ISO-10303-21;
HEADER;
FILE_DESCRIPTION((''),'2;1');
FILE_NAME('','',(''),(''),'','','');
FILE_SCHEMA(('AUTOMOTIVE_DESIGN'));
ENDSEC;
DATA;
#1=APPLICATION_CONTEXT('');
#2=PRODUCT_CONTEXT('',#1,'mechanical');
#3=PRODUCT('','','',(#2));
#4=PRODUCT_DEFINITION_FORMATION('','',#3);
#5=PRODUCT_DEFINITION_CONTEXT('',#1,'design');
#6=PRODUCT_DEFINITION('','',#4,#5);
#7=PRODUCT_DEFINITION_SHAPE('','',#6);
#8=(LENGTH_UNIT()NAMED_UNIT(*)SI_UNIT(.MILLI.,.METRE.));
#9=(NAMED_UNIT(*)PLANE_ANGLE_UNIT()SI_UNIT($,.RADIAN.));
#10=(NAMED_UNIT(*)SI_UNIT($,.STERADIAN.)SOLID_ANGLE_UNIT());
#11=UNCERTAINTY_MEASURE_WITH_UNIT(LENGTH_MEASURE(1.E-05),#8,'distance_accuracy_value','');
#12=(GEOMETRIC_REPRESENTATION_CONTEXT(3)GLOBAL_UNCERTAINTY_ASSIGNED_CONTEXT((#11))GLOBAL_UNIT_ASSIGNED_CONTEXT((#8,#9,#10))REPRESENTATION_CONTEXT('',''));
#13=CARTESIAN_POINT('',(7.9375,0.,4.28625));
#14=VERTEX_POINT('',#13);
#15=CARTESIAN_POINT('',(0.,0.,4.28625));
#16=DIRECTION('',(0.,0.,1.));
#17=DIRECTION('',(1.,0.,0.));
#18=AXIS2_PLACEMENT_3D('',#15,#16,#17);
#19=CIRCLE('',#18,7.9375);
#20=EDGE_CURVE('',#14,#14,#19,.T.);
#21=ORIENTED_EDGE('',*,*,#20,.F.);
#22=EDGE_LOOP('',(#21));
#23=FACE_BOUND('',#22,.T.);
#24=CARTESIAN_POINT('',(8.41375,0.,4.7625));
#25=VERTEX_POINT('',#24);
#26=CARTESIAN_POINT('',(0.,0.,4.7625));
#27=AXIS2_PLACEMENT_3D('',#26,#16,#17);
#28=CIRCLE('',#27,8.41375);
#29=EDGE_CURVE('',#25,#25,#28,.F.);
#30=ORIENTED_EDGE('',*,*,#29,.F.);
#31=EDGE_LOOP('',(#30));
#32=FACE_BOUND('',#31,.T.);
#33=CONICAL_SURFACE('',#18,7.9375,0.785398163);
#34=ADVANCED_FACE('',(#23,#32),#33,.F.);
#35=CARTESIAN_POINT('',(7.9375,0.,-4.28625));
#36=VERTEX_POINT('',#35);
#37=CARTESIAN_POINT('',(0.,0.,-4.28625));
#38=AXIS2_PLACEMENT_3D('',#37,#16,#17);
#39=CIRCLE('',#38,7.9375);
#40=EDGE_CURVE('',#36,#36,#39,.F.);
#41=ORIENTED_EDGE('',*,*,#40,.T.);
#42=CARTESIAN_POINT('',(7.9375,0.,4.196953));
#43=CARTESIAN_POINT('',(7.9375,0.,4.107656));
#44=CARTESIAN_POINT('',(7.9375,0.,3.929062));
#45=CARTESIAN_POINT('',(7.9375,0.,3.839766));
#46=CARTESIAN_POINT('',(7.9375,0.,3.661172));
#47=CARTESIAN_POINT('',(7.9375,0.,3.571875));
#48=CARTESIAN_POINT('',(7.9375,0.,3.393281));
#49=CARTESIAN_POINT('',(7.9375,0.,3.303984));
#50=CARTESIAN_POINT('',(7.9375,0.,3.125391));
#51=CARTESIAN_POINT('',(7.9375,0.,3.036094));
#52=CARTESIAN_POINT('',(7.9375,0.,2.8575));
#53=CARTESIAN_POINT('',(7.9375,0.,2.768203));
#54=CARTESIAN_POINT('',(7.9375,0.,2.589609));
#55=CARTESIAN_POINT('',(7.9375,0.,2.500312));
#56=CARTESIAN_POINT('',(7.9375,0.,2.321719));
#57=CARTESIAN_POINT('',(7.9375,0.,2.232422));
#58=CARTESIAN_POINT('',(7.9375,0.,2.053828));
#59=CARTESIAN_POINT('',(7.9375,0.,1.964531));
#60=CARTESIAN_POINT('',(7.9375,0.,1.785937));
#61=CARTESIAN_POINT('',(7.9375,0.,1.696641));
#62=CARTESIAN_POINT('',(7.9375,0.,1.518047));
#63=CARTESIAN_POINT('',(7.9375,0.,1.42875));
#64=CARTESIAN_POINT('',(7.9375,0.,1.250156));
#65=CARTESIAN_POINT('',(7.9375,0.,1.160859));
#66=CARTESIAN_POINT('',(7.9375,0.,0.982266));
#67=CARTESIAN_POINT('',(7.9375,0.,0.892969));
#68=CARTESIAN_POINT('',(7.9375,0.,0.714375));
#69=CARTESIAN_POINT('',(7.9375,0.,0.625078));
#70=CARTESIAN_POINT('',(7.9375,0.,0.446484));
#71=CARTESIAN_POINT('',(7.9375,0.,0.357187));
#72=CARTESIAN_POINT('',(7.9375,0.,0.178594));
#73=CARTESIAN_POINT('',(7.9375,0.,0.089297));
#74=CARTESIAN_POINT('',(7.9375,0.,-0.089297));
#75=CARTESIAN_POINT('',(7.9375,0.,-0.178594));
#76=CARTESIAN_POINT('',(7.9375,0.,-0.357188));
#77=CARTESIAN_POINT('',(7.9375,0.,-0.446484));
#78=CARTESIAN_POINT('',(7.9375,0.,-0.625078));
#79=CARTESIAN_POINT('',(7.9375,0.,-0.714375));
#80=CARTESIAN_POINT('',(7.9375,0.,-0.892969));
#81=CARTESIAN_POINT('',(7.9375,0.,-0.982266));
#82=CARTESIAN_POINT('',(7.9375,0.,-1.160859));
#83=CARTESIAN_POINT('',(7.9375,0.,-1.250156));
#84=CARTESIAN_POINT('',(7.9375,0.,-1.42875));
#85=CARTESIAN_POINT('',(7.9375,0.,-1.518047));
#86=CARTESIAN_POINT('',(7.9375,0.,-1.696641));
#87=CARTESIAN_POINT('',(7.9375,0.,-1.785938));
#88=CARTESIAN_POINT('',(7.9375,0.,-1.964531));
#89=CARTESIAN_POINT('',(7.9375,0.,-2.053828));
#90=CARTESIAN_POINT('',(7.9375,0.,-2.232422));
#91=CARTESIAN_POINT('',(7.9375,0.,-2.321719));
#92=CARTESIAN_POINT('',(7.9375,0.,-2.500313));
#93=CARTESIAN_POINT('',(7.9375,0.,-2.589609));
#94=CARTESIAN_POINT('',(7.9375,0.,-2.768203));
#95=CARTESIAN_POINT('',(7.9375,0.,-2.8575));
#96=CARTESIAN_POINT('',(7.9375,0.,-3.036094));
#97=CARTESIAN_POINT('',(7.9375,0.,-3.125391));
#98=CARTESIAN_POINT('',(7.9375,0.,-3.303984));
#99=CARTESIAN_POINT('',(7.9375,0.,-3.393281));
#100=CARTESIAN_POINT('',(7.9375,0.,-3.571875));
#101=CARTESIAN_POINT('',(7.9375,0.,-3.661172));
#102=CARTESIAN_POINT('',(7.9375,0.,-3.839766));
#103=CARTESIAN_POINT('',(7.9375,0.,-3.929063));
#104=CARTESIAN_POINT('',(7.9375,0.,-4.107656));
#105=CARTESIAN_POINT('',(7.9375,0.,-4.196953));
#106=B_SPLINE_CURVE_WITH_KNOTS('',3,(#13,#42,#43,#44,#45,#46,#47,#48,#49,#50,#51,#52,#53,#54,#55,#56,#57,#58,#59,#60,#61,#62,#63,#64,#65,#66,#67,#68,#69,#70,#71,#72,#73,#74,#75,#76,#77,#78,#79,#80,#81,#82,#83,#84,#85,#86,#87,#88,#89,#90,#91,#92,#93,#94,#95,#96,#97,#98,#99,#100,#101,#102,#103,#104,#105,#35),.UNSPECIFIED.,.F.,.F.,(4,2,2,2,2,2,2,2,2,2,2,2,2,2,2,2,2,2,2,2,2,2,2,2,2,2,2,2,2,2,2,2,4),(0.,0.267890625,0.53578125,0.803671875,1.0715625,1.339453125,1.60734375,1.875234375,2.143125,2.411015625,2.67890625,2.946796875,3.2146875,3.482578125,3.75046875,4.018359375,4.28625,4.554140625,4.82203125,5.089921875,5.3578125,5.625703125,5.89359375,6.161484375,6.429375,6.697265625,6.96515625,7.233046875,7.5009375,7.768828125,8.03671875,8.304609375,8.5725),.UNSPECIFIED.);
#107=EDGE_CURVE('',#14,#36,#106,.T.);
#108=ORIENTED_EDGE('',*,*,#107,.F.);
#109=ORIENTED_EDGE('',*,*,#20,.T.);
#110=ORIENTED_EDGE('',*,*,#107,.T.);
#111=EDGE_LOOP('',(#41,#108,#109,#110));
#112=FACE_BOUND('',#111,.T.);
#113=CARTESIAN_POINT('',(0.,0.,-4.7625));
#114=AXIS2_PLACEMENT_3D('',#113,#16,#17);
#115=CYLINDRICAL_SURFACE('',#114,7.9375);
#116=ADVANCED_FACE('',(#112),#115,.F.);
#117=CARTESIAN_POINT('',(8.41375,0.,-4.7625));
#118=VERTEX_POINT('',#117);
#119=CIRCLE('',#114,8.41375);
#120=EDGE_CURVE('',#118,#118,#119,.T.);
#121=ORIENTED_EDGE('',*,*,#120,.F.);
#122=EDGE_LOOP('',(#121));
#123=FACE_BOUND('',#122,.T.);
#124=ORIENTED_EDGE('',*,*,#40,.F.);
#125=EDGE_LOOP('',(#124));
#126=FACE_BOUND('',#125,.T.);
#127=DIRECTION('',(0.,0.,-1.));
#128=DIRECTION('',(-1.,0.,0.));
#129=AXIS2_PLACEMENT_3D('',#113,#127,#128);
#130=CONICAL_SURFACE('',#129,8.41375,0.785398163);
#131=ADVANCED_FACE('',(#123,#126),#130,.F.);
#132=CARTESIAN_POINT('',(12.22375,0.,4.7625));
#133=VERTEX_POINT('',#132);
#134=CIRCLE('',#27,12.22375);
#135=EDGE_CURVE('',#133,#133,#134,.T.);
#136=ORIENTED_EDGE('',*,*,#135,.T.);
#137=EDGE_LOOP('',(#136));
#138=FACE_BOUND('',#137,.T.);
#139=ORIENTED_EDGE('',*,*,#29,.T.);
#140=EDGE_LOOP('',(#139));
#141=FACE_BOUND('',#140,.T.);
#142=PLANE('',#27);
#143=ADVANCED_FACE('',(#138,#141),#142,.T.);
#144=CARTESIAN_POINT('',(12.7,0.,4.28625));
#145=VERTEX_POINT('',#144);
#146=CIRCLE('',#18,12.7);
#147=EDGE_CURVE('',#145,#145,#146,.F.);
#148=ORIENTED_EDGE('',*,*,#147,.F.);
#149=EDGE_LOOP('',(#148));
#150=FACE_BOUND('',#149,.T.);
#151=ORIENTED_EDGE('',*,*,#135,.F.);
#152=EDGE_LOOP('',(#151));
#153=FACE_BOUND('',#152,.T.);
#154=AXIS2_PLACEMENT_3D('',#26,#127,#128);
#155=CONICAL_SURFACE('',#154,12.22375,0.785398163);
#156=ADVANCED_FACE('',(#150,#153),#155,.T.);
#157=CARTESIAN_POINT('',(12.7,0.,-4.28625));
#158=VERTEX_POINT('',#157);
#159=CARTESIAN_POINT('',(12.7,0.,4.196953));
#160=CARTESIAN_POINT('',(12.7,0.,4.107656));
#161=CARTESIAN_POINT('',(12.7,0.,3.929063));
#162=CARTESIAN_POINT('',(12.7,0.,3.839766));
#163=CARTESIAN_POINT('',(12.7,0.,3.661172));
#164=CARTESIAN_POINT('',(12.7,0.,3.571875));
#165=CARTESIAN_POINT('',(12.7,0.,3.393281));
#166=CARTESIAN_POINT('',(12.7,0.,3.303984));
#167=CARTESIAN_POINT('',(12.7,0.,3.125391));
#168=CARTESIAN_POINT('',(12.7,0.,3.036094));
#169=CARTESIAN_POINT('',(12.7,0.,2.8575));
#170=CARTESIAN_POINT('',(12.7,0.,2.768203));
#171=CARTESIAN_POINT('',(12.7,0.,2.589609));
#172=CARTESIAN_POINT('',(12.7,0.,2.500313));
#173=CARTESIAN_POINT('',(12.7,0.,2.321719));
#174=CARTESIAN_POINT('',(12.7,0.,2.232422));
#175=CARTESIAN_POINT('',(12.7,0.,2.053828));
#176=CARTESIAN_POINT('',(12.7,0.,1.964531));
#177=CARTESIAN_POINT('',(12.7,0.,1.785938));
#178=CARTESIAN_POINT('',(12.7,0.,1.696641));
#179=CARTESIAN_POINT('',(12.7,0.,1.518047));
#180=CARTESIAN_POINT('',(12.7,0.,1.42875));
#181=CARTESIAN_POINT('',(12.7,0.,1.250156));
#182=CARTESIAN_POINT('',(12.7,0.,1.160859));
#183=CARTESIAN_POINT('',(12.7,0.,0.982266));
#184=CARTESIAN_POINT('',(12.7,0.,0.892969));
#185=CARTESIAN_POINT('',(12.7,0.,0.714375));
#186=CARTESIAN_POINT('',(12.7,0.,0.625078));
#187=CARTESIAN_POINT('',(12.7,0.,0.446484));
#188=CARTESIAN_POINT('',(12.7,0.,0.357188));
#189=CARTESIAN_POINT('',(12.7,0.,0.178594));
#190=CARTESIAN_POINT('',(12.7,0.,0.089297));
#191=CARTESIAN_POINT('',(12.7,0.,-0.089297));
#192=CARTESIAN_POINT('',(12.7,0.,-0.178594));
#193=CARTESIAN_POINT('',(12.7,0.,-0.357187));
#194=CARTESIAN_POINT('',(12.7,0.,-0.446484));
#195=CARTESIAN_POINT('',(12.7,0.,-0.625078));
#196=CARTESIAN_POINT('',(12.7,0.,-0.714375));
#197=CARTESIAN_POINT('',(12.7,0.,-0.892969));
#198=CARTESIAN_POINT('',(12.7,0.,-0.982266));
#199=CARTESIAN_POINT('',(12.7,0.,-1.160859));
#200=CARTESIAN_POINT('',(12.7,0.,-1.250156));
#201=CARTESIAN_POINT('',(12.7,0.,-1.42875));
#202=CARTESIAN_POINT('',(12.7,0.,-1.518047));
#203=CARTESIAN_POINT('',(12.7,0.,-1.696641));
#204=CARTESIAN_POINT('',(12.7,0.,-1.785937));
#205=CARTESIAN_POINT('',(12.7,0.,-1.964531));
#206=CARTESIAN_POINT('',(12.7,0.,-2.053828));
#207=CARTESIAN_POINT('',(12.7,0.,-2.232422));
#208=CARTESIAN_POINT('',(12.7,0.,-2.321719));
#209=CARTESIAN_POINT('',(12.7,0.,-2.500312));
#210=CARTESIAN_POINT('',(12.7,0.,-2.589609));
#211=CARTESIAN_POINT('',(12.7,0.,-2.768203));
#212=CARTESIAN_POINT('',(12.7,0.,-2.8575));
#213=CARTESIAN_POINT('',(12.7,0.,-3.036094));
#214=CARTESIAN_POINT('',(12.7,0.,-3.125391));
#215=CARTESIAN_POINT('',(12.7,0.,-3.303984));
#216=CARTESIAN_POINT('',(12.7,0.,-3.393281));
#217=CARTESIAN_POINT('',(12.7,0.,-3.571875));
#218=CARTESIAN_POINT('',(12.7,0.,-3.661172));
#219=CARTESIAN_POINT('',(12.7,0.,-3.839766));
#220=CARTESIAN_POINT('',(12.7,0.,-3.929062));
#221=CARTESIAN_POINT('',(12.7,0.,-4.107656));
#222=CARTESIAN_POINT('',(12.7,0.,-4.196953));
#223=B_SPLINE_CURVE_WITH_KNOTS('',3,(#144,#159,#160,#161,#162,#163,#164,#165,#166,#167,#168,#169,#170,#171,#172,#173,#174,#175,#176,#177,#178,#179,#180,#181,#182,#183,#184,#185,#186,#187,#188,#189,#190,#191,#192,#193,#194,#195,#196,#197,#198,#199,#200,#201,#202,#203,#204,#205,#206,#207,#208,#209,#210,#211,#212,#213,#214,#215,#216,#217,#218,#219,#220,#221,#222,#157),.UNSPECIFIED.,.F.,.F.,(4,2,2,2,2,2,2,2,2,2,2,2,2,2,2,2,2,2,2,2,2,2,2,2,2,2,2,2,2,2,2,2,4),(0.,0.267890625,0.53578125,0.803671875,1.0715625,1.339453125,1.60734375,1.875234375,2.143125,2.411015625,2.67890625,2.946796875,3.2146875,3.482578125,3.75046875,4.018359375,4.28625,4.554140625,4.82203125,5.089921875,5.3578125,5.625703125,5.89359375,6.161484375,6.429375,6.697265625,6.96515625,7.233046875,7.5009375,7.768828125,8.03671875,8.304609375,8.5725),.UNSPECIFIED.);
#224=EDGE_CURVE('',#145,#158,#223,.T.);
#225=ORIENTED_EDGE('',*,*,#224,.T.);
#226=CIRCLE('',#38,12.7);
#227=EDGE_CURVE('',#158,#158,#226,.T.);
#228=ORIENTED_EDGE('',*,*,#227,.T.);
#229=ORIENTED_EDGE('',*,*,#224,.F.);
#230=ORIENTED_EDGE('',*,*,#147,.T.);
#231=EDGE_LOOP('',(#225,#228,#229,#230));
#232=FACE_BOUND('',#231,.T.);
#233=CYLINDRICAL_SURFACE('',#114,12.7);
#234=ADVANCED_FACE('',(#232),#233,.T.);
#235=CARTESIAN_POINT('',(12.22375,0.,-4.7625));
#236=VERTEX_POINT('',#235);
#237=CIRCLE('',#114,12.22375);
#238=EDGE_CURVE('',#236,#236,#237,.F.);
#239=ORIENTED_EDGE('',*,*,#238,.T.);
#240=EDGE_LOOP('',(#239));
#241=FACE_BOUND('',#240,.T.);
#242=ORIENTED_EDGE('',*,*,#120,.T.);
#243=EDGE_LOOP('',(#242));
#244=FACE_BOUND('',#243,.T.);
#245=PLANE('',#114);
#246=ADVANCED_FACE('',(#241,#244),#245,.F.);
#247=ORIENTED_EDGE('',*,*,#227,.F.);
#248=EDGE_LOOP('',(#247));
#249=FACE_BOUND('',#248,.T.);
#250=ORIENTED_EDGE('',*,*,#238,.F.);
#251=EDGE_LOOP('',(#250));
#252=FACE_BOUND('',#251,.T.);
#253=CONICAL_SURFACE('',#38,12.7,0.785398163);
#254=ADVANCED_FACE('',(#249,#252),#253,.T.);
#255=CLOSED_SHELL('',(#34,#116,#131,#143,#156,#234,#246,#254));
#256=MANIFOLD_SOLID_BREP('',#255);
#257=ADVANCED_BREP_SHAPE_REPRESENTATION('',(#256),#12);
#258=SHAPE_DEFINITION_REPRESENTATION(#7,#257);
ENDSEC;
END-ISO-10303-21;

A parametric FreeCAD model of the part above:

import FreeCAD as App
import Part
import Sketcher
from FreeCAD import Vector
Q = App.Units.Quantity


def edges_at(feature, points):
    """Names of the edges that pass closest to the given points."""
    edges = feature.Shape.Edges
    near = lambda p: min(range(len(edges)), key=lambda i: edges[i].distToShape(Part.Vertex(*p))[0])
    return sorted({f"Edge{near(p) + 1}" for p in points})

doc = App.newDocument("Part")
body = doc.addObject("PartDesign::Body", "Body")

# Sketch on XY plane
sketch1 = doc.addObject("Sketcher::SketchObject", "Sketch")
body.addObject(sketch1)
sketch1.AttachmentSupport = (doc.XY_Plane, [""])
sketch1.MapMode = "FlatFace"
sketch1.addGeometry([
    Part.Circle(Vector(0, 0, 0), Vector(0, 0, 1), 12.7),
    Part.Circle(Vector(0, 0, 0), Vector(0, 0, 1), 7.9375),
], False)
sketch1.addConstraint([
    Sketcher.Constraint("Coincident", 0, 3, -1, 1),
    Sketcher.Constraint("Coincident", 1, 3, -1, 1),
    Sketcher.Constraint("Diameter", 0, Q("1 in")),
    Sketcher.Constraint("Diameter", 1, Q("0.625 in")),
])
pad1 = doc.addObject("PartDesign::Pad", "Pad")
body.addObject(pad1)
pad1.Profile = sketch1
pad1.Type = "TwoLengths"
pad1.Length = Q("0.1875 in")
pad1.Length2 = Q("0.1875 in")
doc.recompute()

chamfer = doc.addObject("PartDesign::Chamfer", "Chamfer")
body.addObject(chamfer)
chamfer.Base = (pad1, edges_at(pad1, [
    (-12.7, 0, -4.763),
    (-7.938, 0, -4.763),
    (-12.7, 0, 4.763),
    (-7.938, 0, 4.763),
]))
chamfer.Size = 0.47625

doc.recompute()
